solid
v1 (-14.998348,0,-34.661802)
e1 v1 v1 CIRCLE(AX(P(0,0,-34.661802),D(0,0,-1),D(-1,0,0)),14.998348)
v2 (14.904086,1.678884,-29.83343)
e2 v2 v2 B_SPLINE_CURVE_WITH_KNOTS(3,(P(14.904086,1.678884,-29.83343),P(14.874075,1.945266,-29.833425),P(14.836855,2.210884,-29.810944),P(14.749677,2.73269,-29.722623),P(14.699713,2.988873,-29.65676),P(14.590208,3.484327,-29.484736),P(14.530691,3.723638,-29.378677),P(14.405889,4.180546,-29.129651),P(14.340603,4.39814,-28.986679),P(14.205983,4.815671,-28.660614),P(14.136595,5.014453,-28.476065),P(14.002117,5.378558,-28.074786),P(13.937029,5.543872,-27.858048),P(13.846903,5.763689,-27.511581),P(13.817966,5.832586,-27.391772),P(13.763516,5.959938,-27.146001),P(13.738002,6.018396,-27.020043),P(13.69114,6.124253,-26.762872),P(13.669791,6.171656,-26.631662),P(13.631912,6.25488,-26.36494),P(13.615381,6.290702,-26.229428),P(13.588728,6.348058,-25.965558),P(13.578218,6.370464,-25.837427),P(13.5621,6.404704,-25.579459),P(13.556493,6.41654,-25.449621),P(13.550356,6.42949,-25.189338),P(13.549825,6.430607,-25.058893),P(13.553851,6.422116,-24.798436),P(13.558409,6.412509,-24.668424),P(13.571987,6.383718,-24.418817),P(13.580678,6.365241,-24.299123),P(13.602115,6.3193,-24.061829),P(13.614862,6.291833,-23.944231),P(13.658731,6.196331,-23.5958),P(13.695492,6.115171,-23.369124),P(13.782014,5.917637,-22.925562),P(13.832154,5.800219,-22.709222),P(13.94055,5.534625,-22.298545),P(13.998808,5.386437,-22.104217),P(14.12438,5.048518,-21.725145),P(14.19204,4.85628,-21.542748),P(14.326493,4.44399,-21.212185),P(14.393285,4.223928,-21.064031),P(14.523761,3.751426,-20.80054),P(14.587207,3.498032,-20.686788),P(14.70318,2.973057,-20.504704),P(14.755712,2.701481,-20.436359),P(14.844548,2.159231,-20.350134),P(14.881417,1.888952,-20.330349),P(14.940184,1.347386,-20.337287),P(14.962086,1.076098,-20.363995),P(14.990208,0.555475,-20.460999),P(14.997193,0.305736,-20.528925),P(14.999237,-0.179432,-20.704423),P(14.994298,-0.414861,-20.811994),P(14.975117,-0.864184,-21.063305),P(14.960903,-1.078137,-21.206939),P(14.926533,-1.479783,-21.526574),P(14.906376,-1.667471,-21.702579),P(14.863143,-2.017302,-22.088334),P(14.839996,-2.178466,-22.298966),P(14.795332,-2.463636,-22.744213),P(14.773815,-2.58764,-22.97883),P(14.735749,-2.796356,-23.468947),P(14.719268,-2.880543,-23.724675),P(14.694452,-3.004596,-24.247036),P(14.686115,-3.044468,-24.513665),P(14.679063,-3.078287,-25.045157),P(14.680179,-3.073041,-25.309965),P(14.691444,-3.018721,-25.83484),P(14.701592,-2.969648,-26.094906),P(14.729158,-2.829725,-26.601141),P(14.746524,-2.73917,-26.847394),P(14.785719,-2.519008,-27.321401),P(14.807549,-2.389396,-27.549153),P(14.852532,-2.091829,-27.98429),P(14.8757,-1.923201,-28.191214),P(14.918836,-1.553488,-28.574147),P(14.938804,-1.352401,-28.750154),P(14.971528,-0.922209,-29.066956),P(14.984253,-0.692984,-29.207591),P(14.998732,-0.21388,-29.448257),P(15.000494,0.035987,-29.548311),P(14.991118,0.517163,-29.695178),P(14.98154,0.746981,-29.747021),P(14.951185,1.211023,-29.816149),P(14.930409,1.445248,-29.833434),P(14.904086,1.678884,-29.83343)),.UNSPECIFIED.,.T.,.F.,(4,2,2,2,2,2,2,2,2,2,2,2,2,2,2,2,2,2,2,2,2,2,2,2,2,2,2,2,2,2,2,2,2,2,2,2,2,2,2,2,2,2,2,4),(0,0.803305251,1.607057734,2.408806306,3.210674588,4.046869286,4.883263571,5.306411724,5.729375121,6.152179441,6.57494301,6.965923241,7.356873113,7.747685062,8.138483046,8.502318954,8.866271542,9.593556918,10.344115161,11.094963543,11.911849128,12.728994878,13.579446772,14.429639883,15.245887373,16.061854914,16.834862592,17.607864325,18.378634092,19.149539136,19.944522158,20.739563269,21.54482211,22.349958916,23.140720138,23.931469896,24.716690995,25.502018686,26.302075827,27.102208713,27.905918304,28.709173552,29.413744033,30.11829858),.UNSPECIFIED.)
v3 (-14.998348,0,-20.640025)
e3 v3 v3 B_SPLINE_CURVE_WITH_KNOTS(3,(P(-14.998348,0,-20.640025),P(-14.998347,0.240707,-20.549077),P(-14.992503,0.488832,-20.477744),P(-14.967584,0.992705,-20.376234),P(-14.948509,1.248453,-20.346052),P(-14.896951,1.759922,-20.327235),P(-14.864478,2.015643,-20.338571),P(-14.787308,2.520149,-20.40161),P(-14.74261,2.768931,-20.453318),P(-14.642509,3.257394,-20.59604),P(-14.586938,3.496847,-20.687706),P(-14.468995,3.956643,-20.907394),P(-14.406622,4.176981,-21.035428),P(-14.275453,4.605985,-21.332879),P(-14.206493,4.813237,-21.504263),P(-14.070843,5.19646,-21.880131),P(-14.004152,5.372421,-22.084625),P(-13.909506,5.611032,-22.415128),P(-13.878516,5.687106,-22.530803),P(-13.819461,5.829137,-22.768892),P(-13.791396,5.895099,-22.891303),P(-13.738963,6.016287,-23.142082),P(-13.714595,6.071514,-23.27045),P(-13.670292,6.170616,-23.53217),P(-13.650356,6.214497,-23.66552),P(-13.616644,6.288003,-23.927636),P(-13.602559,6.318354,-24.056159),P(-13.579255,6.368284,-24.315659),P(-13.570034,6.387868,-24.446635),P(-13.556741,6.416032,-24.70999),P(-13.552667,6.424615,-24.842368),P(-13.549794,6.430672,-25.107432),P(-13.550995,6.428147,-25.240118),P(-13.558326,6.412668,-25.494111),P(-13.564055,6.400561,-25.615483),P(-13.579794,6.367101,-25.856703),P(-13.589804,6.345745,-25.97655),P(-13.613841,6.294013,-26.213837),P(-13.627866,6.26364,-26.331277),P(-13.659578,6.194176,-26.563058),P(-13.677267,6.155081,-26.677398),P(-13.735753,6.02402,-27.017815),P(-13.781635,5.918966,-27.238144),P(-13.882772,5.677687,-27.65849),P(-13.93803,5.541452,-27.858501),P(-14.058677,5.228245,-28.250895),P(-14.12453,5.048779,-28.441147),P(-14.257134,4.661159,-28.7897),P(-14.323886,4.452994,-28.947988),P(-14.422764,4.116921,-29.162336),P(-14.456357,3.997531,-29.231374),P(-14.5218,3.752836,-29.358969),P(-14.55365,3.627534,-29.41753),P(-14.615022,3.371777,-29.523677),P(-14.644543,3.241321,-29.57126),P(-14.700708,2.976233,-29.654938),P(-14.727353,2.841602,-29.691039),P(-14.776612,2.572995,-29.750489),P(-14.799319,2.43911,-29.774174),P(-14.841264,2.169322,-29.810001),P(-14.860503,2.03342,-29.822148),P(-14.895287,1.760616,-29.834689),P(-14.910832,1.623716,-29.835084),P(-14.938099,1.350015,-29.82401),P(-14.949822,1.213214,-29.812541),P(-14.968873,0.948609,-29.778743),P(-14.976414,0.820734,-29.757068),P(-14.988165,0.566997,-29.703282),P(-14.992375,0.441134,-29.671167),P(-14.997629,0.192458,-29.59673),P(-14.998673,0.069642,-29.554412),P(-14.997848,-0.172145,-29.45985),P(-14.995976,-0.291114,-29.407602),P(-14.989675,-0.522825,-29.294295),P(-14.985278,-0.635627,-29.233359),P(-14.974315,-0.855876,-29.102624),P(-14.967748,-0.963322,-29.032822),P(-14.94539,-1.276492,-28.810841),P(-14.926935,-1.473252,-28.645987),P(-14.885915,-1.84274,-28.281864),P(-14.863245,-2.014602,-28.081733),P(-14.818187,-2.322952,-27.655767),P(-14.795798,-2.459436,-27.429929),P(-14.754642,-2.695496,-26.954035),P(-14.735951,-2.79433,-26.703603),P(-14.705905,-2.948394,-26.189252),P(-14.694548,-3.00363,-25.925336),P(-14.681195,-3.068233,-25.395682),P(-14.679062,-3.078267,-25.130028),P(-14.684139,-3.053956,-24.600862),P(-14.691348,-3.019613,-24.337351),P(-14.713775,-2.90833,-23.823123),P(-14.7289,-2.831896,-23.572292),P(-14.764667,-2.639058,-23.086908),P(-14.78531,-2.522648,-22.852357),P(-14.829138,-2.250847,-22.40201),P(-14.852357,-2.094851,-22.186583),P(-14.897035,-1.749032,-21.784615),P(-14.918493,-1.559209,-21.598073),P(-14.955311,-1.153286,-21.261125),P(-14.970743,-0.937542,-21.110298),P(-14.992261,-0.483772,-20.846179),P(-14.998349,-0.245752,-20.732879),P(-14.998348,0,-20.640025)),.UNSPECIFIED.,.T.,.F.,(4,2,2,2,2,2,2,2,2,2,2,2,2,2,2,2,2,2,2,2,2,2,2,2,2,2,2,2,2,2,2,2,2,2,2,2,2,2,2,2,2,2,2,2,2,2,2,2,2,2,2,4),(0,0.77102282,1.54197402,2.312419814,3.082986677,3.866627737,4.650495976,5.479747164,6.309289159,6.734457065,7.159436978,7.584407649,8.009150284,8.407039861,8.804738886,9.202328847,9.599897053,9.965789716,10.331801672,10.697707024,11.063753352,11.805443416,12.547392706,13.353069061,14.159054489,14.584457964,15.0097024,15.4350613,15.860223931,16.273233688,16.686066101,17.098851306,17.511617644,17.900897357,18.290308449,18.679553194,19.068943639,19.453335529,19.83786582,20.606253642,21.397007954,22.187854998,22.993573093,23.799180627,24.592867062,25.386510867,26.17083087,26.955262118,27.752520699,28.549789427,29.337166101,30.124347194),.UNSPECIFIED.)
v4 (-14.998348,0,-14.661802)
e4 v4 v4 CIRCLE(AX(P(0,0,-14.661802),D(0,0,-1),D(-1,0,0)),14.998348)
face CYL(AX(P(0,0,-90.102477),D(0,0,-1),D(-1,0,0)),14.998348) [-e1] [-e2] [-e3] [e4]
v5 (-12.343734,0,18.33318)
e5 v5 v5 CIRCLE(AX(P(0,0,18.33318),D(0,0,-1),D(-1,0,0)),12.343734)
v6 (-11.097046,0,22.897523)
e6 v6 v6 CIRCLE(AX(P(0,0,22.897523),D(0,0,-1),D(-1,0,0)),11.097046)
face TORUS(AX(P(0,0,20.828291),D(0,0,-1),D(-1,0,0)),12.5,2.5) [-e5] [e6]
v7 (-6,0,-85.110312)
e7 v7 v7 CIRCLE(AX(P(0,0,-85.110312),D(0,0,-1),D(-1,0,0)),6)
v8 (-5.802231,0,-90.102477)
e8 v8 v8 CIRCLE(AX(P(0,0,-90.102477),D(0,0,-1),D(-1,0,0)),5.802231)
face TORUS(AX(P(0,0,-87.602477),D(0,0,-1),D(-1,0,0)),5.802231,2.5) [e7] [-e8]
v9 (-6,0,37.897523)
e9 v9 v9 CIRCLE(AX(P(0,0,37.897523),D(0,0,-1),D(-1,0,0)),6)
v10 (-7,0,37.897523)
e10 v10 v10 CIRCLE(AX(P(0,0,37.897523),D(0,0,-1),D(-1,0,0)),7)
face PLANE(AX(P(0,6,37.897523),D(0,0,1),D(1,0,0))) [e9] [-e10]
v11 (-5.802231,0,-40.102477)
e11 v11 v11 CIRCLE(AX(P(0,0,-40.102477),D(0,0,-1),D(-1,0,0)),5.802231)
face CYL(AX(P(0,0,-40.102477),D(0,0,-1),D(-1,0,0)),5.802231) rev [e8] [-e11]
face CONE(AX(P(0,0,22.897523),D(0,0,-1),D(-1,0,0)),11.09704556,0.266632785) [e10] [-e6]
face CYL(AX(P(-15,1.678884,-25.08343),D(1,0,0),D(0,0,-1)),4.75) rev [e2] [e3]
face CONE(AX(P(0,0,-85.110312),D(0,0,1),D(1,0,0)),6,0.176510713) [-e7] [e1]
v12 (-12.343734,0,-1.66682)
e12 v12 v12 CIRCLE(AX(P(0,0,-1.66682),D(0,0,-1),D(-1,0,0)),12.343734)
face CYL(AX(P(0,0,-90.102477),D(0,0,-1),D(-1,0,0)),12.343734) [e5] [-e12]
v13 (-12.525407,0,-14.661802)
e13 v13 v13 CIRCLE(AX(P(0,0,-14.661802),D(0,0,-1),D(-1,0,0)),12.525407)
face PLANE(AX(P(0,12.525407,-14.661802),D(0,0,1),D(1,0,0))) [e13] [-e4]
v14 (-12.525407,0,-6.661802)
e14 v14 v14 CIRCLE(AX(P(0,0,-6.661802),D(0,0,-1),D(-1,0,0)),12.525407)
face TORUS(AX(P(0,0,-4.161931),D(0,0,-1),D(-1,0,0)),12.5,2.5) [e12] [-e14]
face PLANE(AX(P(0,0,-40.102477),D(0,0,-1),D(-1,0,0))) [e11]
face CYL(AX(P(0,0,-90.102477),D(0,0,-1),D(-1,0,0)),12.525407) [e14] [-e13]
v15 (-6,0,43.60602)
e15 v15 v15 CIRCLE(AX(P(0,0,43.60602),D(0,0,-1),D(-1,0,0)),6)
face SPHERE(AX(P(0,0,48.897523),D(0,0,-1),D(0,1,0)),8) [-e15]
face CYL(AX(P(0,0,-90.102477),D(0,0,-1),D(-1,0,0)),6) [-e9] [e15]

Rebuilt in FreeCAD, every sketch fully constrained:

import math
import FreeCAD as App
import Part
import Sketcher
Q = App.Units.Quantity

doc = App.newDocument("Part")
body = doc.addObject("PartDesign::Body", "Body")

sketch1 = body.newObject("Sketcher::SketchObject", "Sketch")
sketch1.AttachmentSupport = (doc.getObject("YZ_Plane"), [""])
sketch1.MapMode = "FlatFace"
sketch1.addGeometry(Part.LineSegment(App.Vector(7, 37.9, 0), App.Vector(6, 37.9, 0)), False)
sketch1.addGeometry(Part.LineSegment(App.Vector(6, 37.9, 0), App.Vector(6, 43.6, 0)), False)
sketch1.addGeometry(Part.ArcOfCircle(Part.Circle(App.Vector(0, 48.9, 0), App.Vector(0, 0, 1), 8), math.radians(-41), math.radians(90)), False)
sketch1.addGeometry(Part.LineSegment(App.Vector(0, 56.9, 0), App.Vector(0, -90.1, 0)), False)
sketch1.addGeometry(Part.LineSegment(App.Vector(0, -90.1, 0), App.Vector(5.8, -90.1, 0)), False)
sketch1.addGeometry(Part.ArcOfCircle(Part.Circle(App.Vector(5.8, -87.6, 0), App.Vector(0, 0, 1), 2.5), math.radians(-90), math.radians(85)), False)
sketch1.addGeometry(Part.LineSegment(App.Vector(6, -85.1, 0), App.Vector(15, -34.7, 0)), False)
sketch1.addGeometry(Part.LineSegment(App.Vector(15, -34.7, 0), App.Vector(15, -14.7, 0)), False)
sketch1.addGeometry(Part.LineSegment(App.Vector(15, -14.7, 0), App.Vector(12.5, -14.7, 0)), False)
sketch1.addGeometry(Part.LineSegment(App.Vector(12.5, -14.7, 0), App.Vector(12.5, -6.7, 0)), False)
sketch1.addGeometry(Part.ArcOfCircle(Part.Circle(App.Vector(12.5, -4.2, 0), App.Vector(0, 0, 1), 2.5), math.radians(-89), math.radians(94)), False)
sketch1.addGeometry(Part.LineSegment(App.Vector(12.3, -1.7, 0), App.Vector(12.3, 18.3, 0)), False)
sketch1.addGeometry(Part.ArcOfCircle(Part.Circle(App.Vector(12.5, 20.8, 0), App.Vector(0, 0, 1), 2.5), math.radians(-94), math.radians(124)), False)
sketch1.addGeometry(Part.LineSegment(App.Vector(11.1, 22.9, 0), App.Vector(7, 37.9, 0)), False)
sketch1.addConstraint(Sketcher.Constraint("Coincident", 0, 2, 1, 1))
sketch1.addConstraint(Sketcher.Constraint("Coincident", 1, 2, 2, 1))
sketch1.addConstraint(Sketcher.Constraint("Coincident", 2, 2, 3, 1))
sketch1.addConstraint(Sketcher.Constraint("Coincident", 3, 2, 4, 1))
sketch1.addConstraint(Sketcher.Constraint("Tangent", 4, 2, 5, 1))
sketch1.addConstraint(Sketcher.Constraint("Coincident", 5, 2, 6, 1))
sketch1.addConstraint(Sketcher.Constraint("Coincident", 6, 2, 7, 1))
sketch1.addConstraint(Sketcher.Constraint("Coincident", 7, 2, 8, 1))
sketch1.addConstraint(Sketcher.Constraint("Coincident", 8, 2, 9, 1))
sketch1.addConstraint(Sketcher.Constraint("Coincident", 9, 2, 10, 1))
sketch1.addConstraint(Sketcher.Constraint("Coincident", 10, 2, 11, 1))
sketch1.addConstraint(Sketcher.Constraint("Coincident", 11, 2, 12, 1))
sketch1.addConstraint(Sketcher.Constraint("Coincident", 12, 2, 13, 1))
sketch1.addConstraint(Sketcher.Constraint("Coincident", 13, 2, 0, 1))
sketch1.addConstraint(Sketcher.Constraint("Horizontal", 0))
sketch1.addConstraint(Sketcher.Constraint("Vertical", 1))
sketch1.addConstraint(Sketcher.Constraint("Vertical", 3))
sketch1.addConstraint(Sketcher.Constraint("Horizontal", 4))
sketch1.addConstraint(Sketcher.Constraint("Vertical", 7))
sketch1.addConstraint(Sketcher.Constraint("Horizontal", 8))
sketch1.addConstraint(Sketcher.Constraint("Vertical", 9))
sketch1.addConstraint(Sketcher.Constraint("Vertical", 11))
sketch1.addConstraint(Sketcher.Constraint("Equal", 5, 10))
sketch1.addConstraint(Sketcher.Constraint("Equal", 10, 12))
sketch1.addConstraint(Sketcher.Constraint("PointOnObject", 2, 3, -2))
sketch1.addConstraint(Sketcher.Constraint("PointOnObject", 2, 2, -2))
sketch1.addConstraint(Sketcher.Constraint("Vertical", 10, 3, 12, 3))
sketch1.addConstraint(Sketcher.Constraint("Vertical", 1, 2, 5, 2))
sketch1.addConstraint(Sketcher.Constraint("Equal", 7, 11))
sketch1.addConstraint(Sketcher.Constraint("Radius", 2, Q("8 mm")))
sketch1.addConstraint(Sketcher.Constraint("Radius", 5, Q("2.5 mm")))
sketch1.addConstraint(Sketcher.Constraint("DistanceX", 0, 2, 0, 1, Q("1 mm")))
sketch1.addConstraint(Sketcher.Constraint("DistanceY", 3, 2, 3, 1, Q("147 mm")))
sketch1.addConstraint(Sketcher.Constraint("DistanceY", 7, 1, 7, 2, Q("20 mm")))
sketch1.addConstraint(Sketcher.Constraint("DistanceY", 9, 1, 9, 2, Q("8 mm")))
sketch1.addConstraint(Sketcher.Constraint("DistanceX", -1, 1, 0, 2, Q("6 mm")))
sketch1.addConstraint(Sketcher.Constraint("DistanceY", 0, 2, 2, 3, Q("11 mm")))
sketch1.addConstraint(Sketcher.Constraint("DistanceY", 12, 2, 0, 2, Q("15 mm")))
sketch1.addConstraint(Sketcher.Constraint("DistanceX", -1, 1, 10, 3, Q("12.5 mm")))
sketch1.addConstraint(Sketcher.Constraint("DistanceX", 4, 1, 4, 2, Q("5.802231 mm")))
sketch1.addConstraint(Sketcher.Constraint("DistanceX", 8, 2, 8, 1, Q("2.472941 mm")))
sketch1.addConstraint(Sketcher.Constraint("Distance", 6, Q("51.24473 mm")))
sketch1.addConstraint(Sketcher.Constraint("DistanceY", 10, 3, -1, 1, Q("4.161931 mm")))
sketch1.addConstraint(Sketcher.Constraint("DistanceY", -1, 1, 12, 3, Q("20.828291 mm")))
sketch1.addConstraint(Sketcher.Constraint("DistanceY", -1, 1, 1, 2, Q("43.60602 mm")))
revolution = body.newObject("PartDesign::Revolution", "Revolution")
revolution.Profile = sketch1
revolution.ReferenceAxis = (sketch1, ["V_Axis"])
revolution.Angle = 360

sketch2 = body.newObject("Sketcher::SketchObject", "Sketch001")
sketch2.AttachmentSupport = (doc.getObject("XY_Plane"), [""])
sketch2.MapMode = "FlatFace"
sketch2.AttachmentOffset = App.Placement(App.Vector(0, 0, -90.102477), App.Rotation())
sketch2.addGeometry(Part.Circle(App.Vector(0, 0, 0), App.Vector(0, 0, 1), 6), False)
sketch2.addConstraint(Sketcher.Constraint("Coincident", 0, 3, -1, 1))
sketch2.addConstraint(Sketcher.Constraint("Diameter", 0, Q("11.604461 mm")))
pocket1 = body.newObject("PartDesign::Pocket", "Pocket")
pocket1.Profile = sketch2
pocket1.Length = 50
pocket1.Reversed = True

sketch3 = body.newObject("Sketcher::SketchObject", "Sketch002")
sketch3.AttachmentSupport = (doc.getObject("YZ_Plane"), [""])
sketch3.MapMode = "FlatFace"
sketch3.addGeometry(Part.Circle(App.Vector(1.7, -25.1, 0), App.Vector(0, 0, 1), 4.8), False)
sketch3.addConstraint(Sketcher.Constraint("Diameter", 0, Q("9.5 mm")))
sketch3.addConstraint(Sketcher.Constraint("DistanceY", 0, 3, -1, 1, Q("25.08343 mm")))
sketch3.addConstraint(Sketcher.Constraint("DistanceX", -1, 1, 0, 3, Q("1.678884 mm")))
pocket2 = body.newObject("PartDesign::Pocket", "Pocket001")
pocket2.Profile = sketch3
pocket2.Type = "ThroughAll"
pocket2.Midplane = True

doc.recompute()
